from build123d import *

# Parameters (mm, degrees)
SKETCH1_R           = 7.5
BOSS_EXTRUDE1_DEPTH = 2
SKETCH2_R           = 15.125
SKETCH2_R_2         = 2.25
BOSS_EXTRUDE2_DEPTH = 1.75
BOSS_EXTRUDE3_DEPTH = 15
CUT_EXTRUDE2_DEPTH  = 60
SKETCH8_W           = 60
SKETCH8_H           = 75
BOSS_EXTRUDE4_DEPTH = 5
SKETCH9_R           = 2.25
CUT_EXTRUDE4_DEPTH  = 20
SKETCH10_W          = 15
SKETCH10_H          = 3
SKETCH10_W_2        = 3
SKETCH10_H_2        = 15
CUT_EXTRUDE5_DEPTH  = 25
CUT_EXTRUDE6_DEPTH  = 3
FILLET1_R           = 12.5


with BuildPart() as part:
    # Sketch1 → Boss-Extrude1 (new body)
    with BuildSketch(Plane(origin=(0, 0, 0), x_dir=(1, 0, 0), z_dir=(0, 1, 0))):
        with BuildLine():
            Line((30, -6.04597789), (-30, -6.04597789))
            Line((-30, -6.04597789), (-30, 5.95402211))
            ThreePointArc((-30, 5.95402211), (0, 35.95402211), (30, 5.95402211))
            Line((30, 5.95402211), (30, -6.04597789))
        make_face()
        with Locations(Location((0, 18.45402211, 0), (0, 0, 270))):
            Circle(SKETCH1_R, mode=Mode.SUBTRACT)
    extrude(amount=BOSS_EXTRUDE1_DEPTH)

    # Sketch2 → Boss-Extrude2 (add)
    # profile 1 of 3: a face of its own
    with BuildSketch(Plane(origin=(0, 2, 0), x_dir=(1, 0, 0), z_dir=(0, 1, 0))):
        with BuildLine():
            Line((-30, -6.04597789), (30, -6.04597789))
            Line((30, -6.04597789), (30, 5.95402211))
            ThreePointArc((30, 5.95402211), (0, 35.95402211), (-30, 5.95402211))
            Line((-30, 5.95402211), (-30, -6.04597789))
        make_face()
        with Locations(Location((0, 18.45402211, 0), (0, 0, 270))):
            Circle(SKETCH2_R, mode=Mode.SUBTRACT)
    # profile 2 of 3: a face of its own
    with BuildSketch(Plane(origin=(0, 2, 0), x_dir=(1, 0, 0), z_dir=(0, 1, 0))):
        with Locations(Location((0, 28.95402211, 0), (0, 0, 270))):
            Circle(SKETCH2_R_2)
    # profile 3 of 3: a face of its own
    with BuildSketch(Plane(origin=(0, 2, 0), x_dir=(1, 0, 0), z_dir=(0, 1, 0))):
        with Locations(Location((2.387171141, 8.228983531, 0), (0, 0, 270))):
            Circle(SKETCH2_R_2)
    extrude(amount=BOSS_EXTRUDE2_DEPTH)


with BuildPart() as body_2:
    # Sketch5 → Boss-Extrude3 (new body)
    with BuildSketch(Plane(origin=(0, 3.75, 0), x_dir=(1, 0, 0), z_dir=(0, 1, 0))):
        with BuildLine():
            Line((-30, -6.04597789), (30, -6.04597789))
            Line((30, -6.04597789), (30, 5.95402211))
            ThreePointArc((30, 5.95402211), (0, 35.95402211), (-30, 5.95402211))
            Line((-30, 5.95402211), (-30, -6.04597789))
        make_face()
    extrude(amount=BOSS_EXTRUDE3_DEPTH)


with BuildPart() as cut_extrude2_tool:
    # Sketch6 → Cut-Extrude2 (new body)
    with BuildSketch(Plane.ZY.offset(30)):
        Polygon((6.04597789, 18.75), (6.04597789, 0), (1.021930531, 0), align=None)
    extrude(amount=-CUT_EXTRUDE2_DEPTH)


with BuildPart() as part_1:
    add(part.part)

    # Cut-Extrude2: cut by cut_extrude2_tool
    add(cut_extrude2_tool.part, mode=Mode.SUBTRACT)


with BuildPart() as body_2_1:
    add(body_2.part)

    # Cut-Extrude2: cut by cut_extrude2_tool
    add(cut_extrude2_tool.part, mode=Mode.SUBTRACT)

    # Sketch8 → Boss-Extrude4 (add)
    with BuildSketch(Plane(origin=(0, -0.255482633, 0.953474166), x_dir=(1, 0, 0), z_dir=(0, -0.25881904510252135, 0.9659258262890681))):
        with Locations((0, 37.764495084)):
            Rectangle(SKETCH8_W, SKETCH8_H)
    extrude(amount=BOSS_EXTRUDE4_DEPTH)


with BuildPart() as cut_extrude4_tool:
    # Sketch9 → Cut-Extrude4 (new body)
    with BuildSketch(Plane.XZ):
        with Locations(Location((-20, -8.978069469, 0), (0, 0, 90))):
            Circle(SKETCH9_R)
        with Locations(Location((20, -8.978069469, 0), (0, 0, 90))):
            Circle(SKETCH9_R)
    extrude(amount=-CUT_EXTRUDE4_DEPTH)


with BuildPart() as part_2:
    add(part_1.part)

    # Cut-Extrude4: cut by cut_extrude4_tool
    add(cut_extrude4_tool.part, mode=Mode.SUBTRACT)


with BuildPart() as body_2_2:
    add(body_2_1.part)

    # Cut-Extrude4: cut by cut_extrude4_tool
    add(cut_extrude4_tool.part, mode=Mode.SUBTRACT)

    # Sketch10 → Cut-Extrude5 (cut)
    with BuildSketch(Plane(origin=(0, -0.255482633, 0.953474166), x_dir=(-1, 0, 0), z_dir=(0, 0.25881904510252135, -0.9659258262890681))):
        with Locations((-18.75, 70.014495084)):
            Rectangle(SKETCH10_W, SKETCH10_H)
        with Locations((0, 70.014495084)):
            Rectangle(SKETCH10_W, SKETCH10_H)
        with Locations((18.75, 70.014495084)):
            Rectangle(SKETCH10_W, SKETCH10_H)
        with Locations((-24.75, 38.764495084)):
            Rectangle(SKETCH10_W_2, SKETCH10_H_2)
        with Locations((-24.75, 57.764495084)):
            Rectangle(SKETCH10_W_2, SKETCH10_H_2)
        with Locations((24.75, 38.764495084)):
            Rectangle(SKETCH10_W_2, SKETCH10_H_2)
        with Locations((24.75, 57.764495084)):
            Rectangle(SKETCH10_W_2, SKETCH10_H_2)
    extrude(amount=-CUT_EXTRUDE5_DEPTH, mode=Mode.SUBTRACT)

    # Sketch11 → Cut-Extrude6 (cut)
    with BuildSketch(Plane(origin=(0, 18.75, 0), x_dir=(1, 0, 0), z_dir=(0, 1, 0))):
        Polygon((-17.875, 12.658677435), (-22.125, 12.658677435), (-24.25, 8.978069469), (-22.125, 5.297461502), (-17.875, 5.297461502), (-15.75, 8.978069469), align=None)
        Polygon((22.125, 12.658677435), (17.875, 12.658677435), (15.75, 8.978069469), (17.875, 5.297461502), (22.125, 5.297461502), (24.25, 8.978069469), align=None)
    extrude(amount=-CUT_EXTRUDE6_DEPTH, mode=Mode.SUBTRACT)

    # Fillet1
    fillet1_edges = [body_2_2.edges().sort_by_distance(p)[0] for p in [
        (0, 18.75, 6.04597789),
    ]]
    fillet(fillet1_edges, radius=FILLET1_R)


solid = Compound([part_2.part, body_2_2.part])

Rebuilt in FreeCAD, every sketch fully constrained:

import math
import FreeCAD as App
import Part
import Sketcher

V = App.Vector
Q = App.Units.Quantity


def edges_at(feature, points):
    """Names of the edges that pass closest to the given points."""
    edges = feature.Shape.Edges
    near = lambda p: min(range(len(edges)), key=lambda i: edges[i].distToShape(Part.Vertex(*p))[0])
    return sorted({f"Edge{near(p) + 1}" for p in points})


def add_polygon(sketch, points):
    """Adds a closed chain of lines whose ends are joined by coincident constraints."""
    first, n = sketch.GeometryCount, len(points)
    for a, b in zip(points, points[1:] + points[:1]):
        sketch.addGeometry(Part.LineSegment(App.Vector(*a, 0), App.Vector(*b, 0)), False)
    for i in range(n):
        sketch.addConstraint(Sketcher.Constraint("Coincident", first + i, 2, first + (i + 1) % n, 1))

doc = App.newDocument("Part")
body = doc.addObject("PartDesign::Body", "Body")

sketch1 = body.newObject("Sketcher::SketchObject", "Sketch")
sketch1.AttachmentSupport = (doc.getObject("XZ_Plane"), [""])
sketch1.MapMode = "FlatFace"
sketch1.addGeometry(Part.LineSegment(V(-30, 6.045978, 0), V(30, 6.045978, 0)), False)
sketch1.addGeometry(Part.LineSegment(V(30, 6.045978, 0), V(30, -5.954022, 0)), False)
sketch1.addGeometry(Part.ArcOfCircle(Part.Circle(V(0, -5.954022, 0), V(0, 0, 1), 30), math.radians(180), math.radians(360)), False)
sketch1.addGeometry(Part.LineSegment(V(-30, -5.954022, 0), V(-30, 6.045978, 0)), False)
sketch1.addGeometry(Part.Circle(V(0, -18.454022, 0), V(0, 0, 1), 7.5), False)
sketch1.addConstraint(Sketcher.Constraint("Coincident", 0, 2, 1, 1))
sketch1.addConstraint(Sketcher.Constraint("Tangent", 1, 2, 2, 2))
sketch1.addConstraint(Sketcher.Constraint("Tangent", 2, 1, 3, 1))
sketch1.addConstraint(Sketcher.Constraint("Coincident", 3, 2, 0, 1))
sketch1.addConstraint(Sketcher.Constraint("Horizontal", 0))
sketch1.addConstraint(Sketcher.Constraint("Vertical", 1))
sketch1.addConstraint(Sketcher.Constraint("Vertical", 3))
sketch1.addConstraint(Sketcher.Constraint("PointOnObject", 2, 3, -2))
sketch1.addConstraint(Sketcher.Constraint("PointOnObject", 4, 3, -2))
sketch1.addConstraint(Sketcher.Constraint("Diameter", 4, 15.0))
sketch1.addConstraint(Sketcher.Constraint("Radius", 2, 30.0))
sketch1.addConstraint(Sketcher.Constraint("DistanceY", 1, 2, 1, 1, 12.0))
sketch1.addConstraint(Sketcher.Constraint("DistanceY", 4, 3, 2, 3, 12.5))
sketch1.addConstraint(Sketcher.Constraint("DistanceY", 2, 3, -1, 1, 5.954022))
pad1 = body.newObject("PartDesign::Pad", "Pad")
pad1.Profile = sketch1
pad1.Length = 2
pad1.Reversed = True

sketch2 = body.newObject("Sketcher::SketchObject", "Sketch001")
sketch2.AttachmentSupport = (doc.getObject("XZ_Plane"), [""])
sketch2.MapMode = "FlatFace"
sketch2.AttachmentOffset = App.Placement(V(0, 0, -2), App.Rotation())
sketch2.addGeometry(Part.LineSegment(V(-30, 6.045978, 0), V(30, 6.045978, 0)), False)
sketch2.addGeometry(Part.LineSegment(V(30, 6.045978, 0), V(30, -5.954022, 0)), False)
sketch2.addGeometry(Part.ArcOfCircle(Part.Circle(V(0, -5.954022, 0), V(0, 0, 1), 30), math.radians(180), math.radians(360)), False)
sketch2.addGeometry(Part.LineSegment(V(-30, -5.954022, 0), V(-30, 6.045978, 0)), False)
sketch2.addGeometry(Part.Circle(V(0, -18.454022, 0), V(0, 0, 1), 15.125), False)
sketch2.addGeometry(Part.Circle(V(0, -28.954022, 0), V(0, 0, 1), 2.25), False)
sketch2.addGeometry(Part.Circle(V(2.387171, -8.228984, 0), V(0, 0, 1), 2.25), False)
sketch2.addConstraint(Sketcher.Constraint("Coincident", 0, 2, 1, 1))
sketch2.addConstraint(Sketcher.Constraint("Tangent", 1, 2, 2, 2))
sketch2.addConstraint(Sketcher.Constraint("Tangent", 2, 1, 3, 1))
sketch2.addConstraint(Sketcher.Constraint("Coincident", 3, 2, 0, 1))
sketch2.addConstraint(Sketcher.Constraint("Horizontal", 0))
sketch2.addConstraint(Sketcher.Constraint("Vertical", 1))
sketch2.addConstraint(Sketcher.Constraint("Vertical", 3))
sketch2.addConstraint(Sketcher.Constraint("Equal", 5, 6))
sketch2.addConstraint(Sketcher.Constraint("PointOnObject", 2, 3, -2))
sketch2.addConstraint(Sketcher.Constraint("PointOnObject", 4, 3, -2))
sketch2.addConstraint(Sketcher.Constraint("PointOnObject", 5, 3, -2))
sketch2.addConstraint(Sketcher.Constraint("Radius", 2, 30.0))
sketch2.addConstraint(Sketcher.Constraint("Diameter", 5, 4.5))
sketch2.addConstraint(Sketcher.Constraint("Diameter", 4, 30.25))
sketch2.addConstraint(Sketcher.Constraint("DistanceY", 1, 2, 1, 1, 12.0))
sketch2.addConstraint(Sketcher.Constraint("DistanceY", 5, 3, 2, 3, 23.0))
sketch2.addConstraint(Sketcher.Constraint("DistanceY", 4, 3, 2, 3, 12.5))
sketch2.addConstraint(Sketcher.Constraint("DistanceX", -1, 1, 6, 3, 2.387171))
sketch2.addConstraint(Sketcher.Constraint("DistanceY", 6, 3, 2, 3, 2.274961))
sketch2.addConstraint(Sketcher.Constraint("DistanceY", 2, 3, -1, 1, 5.954022))
pad2 = body.newObject("PartDesign::Pad", "Pad001")
pad2.Profile = sketch2
pad2.Length = 1.75
pad2.Reversed = True
body2 = doc.addObject("PartDesign::Body", "Body001")

sketch3 = body2.newObject("Sketcher::SketchObject", "Sketch002")
sketch3.AttachmentSupport = (doc.getObject("XZ_Plane001"), [""])
sketch3.MapMode = "FlatFace"
sketch3.AttachmentOffset = App.Placement(V(0, 0, -3.75), App.Rotation())
sketch3.addGeometry(Part.LineSegment(V(-30, 6.045978, 0), V(30, 6.045978, 0)), False)
sketch3.addGeometry(Part.LineSegment(V(30, 6.045978, 0), V(30, -5.954022, 0)), False)
sketch3.addGeometry(Part.ArcOfCircle(Part.Circle(V(0, -5.954022, 0), V(0, 0, 1), 30), math.radians(180), math.radians(360)), False)
sketch3.addGeometry(Part.LineSegment(V(-30, -5.954022, 0), V(-30, 6.045978, 0)), False)
sketch3.addConstraint(Sketcher.Constraint("Coincident", 0, 2, 1, 1))
sketch3.addConstraint(Sketcher.Constraint("Tangent", 1, 2, 2, 2))
sketch3.addConstraint(Sketcher.Constraint("Tangent", 2, 1, 3, 1))
sketch3.addConstraint(Sketcher.Constraint("Coincident", 3, 2, 0, 1))
sketch3.addConstraint(Sketcher.Constraint("Horizontal", 0))
sketch3.addConstraint(Sketcher.Constraint("Vertical", 1))
sketch3.addConstraint(Sketcher.Constraint("Vertical", 3))
sketch3.addConstraint(Sketcher.Constraint("PointOnObject", 2, 3, -2))
sketch3.addConstraint(Sketcher.Constraint("Radius", 2, 30.0))
sketch3.addConstraint(Sketcher.Constraint("DistanceY", 1, 2, 1, 1, 12.0))
sketch3.addConstraint(Sketcher.Constraint("DistanceY", 2, 3, -1, 1, 5.954022))
pad3 = body2.newObject("PartDesign::Pad", "Pad002")
pad3.Profile = sketch3
pad3.Length = 15
pad3.Reversed = True
body3 = doc.addObject("PartDesign::Body", "Body002")

sketch4 = body3.newObject("Sketcher::SketchObject", "Sketch003")
sketch4.AttachmentSupport = (doc.getObject("YZ_Plane002"), [""])
sketch4.MapMode = "FlatFace"
sketch4.AttachmentOffset = App.Placement(V(0, 0, -30), App.Rotation())
add_polygon(sketch4, [(0, 6.045978), (18.75, 6.045978), (0, 1.021931)])
sketch4.addConstraint(Sketcher.Constraint("Horizontal", 0))
sketch4.addConstraint(Sketcher.Constraint("Vertical", 2))
sketch4.addConstraint(Sketcher.Constraint("PointOnObject", 1, 2, -2))
sketch4.addConstraint(Sketcher.Constraint("Angle", 1, Q("-165 deg")))
sketch4.addConstraint(Sketcher.Constraint("DistanceX", 0, 1, 0, 2, 18.75))
sketch4.addConstraint(Sketcher.Constraint("DistanceY", -1, 1, 1, 2, 1.021931))
pad4 = body3.newObject("PartDesign::Pad", "Pad003")
pad4.Profile = sketch4
pad4.Length = 60
doc.recompute()

body4 = doc.addObject("PartDesign::Body", "Body003")
body4.BaseFeature = body3
boolean = body.newObject("PartDesign::Boolean", "Boolean")
boolean.Type = "Cut"
boolean.addObjects([body4])
doc.recompute()

boolean2 = body2.newObject("PartDesign::Boolean", "Boolean001")
boolean2.Type = "Cut"
boolean2.addObjects([body3])

sketch5 = body2.newObject("Sketcher::SketchObject", "Sketch004")
sketch5.Placement = App.Placement(V(0, -0.255483, 0.953474), App.Rotation(V(1, 0, 0), V(0, 0.965925826, 0.258819045), V(0, -0.258819045, 0.965925826), "ZXY"))
add_polygon(sketch5, [(-30, 75.264495), (-30, 0.264495), (30, 0.264495), (30, 75.264495)])
sketch5.addConstraint(Sketcher.Constraint("Vertical", 0))
sketch5.addConstraint(Sketcher.Constraint("Horizontal", 1))
sketch5.addConstraint(Sketcher.Constraint("Vertical", 2))
sketch5.addConstraint(Sketcher.Constraint("Horizontal", 3))
sketch5.addConstraint(Sketcher.Constraint("DistanceX", 1, 1, 1, 2, 60.0))
sketch5.addConstraint(Sketcher.Constraint("DistanceY", 0, 2, 0, 1, 75.0))
sketch5.addConstraint(Sketcher.Constraint("DistanceX", 0, 2, -1, 1, 30.0))
sketch5.addConstraint(Sketcher.Constraint("DistanceY", -1, 1, 0, 2, 0.264495))
pad5 = body2.newObject("PartDesign::Pad", "Pad004")
pad5.Profile = sketch5
pad5.Length = 5
body5 = doc.addObject("PartDesign::Body", "Body004")
body5.AllowCompound = True

sketch6 = body5.newObject("Sketcher::SketchObject", "Sketch005")
sketch6.AttachmentSupport = (doc.getObject("XZ_Plane004"), [""])
sketch6.MapMode = "FlatFace"
sketch6.addGeometry(Part.Circle(V(-20, -8.978069, 0), V(0, 0, 1), 2.25), False)
sketch6.addGeometry(Part.Circle(V(20, -8.978069, 0), V(0, 0, 1), 2.25), False)
sketch6.addConstraint(Sketcher.Constraint("Equal", 0, 1))
sketch6.addConstraint(Sketcher.Constraint("Symmetric", 0, 3, 1, 3, -2))
sketch6.addConstraint(Sketcher.Constraint("Diameter", 0, 4.5))
sketch6.addConstraint(Sketcher.Constraint("DistanceX", 0, 3, -1, 1, 20.0))
sketch6.addConstraint(Sketcher.Constraint("DistanceY", 0, 3, -1, 1, 8.978069))
pad6 = body5.newObject("PartDesign::Pad", "Pad005")
pad6.Profile = sketch6
pad6.Length = 20
pad6.Reversed = True
doc.recompute()

body6 = doc.addObject("PartDesign::Body", "Body005")
body6.BaseFeature = body5
boolean3 = body.newObject("PartDesign::Boolean", "Boolean002")
boolean3.Type = "Cut"
boolean3.addObjects([body6])
doc.recompute()

boolean4 = body2.newObject("PartDesign::Boolean", "Boolean003")
boolean4.Type = "Cut"
boolean4.addObjects([body5])

sketch7 = body2.newObject("Sketcher::SketchObject", "Sketch006")
sketch7.Placement = App.Placement(V(0, -0.255483, 0.953474), App.Rotation(V(-1, 0, 0), V(0, 0.965925826, 0.258819045), V(0, 0.258819045, -0.965925826), "ZXY"))
add_polygon(sketch7, [(-26.25, 71.514495), (-26.25, 68.514495), (-11.25, 68.514495), (-11.25, 71.514495)])
add_polygon(sketch7, [(-7.5, 71.514495), (-7.5, 68.514495), (7.5, 68.514495), (7.5, 71.514495)])
add_polygon(sketch7, [(11.25, 71.514495), (11.25, 68.514495), (26.25, 68.514495), (26.25, 71.514495)])
add_polygon(sketch7, [(-26.25, 46.264495), (-26.25, 31.264495), (-23.25, 31.264495), (-23.25, 46.264495)])
add_polygon(sketch7, [(-26.25, 65.264495), (-26.25, 50.264495), (-23.25, 50.264495), (-23.25, 65.264495)])
add_polygon(sketch7, [(23.25, 46.264495), (23.25, 31.264495), (26.25, 31.264495), (26.25, 46.264495)])
add_polygon(sketch7, [(23.25, 65.264495), (23.25, 50.264495), (26.25, 50.264495), (26.25, 65.264495)])
sketch7.addConstraint(Sketcher.Constraint("Vertical", 0))
sketch7.addConstraint(Sketcher.Constraint("Horizontal", 1))
sketch7.addConstraint(Sketcher.Constraint("Vertical", 2))
sketch7.addConstraint(Sketcher.Constraint("Horizontal", 3))
sketch7.addConstraint(Sketcher.Constraint("Vertical", 4))
sketch7.addConstraint(Sketcher.Constraint("Horizontal", 5))
sketch7.addConstraint(Sketcher.Constraint("Vertical", 6))
sketch7.addConstraint(Sketcher.Constraint("Horizontal", 7))
sketch7.addConstraint(Sketcher.Constraint("Vertical", 8))
sketch7.addConstraint(Sketcher.Constraint("Horizontal", 9))
sketch7.addConstraint(Sketcher.Constraint("Vertical", 10))
sketch7.addConstraint(Sketcher.Constraint("Horizontal", 11))
sketch7.addConstraint(Sketcher.Constraint("Vertical", 12))
sketch7.addConstraint(Sketcher.Constraint("Horizontal", 13))
sketch7.addConstraint(Sketcher.Constraint("Vertical", 14))
sketch7.addConstraint(Sketcher.Constraint("Horizontal", 15))
sketch7.addConstraint(Sketcher.Constraint("Vertical", 16))
sketch7.addConstraint(Sketcher.Constraint("Horizontal", 17))
sketch7.addConstraint(Sketcher.Constraint("Vertical", 18))
sketch7.addConstraint(Sketcher.Constraint("Horizontal", 19))
sketch7.addConstraint(Sketcher.Constraint("Vertical", 20))
sketch7.addConstraint(Sketcher.Constraint("Horizontal", 21))
sketch7.addConstraint(Sketcher.Constraint("Vertical", 22))
sketch7.addConstraint(Sketcher.Constraint("Horizontal", 23))
sketch7.addConstraint(Sketcher.Constraint("Vertical", 24))
sketch7.addConstraint(Sketcher.Constraint("Horizontal", 25))
sketch7.addConstraint(Sketcher.Constraint("Vertical", 26))
sketch7.addConstraint(Sketcher.Constraint("Horizontal", 27))
sketch7.addConstraint(Sketcher.Constraint("Symmetric", 1, 2, 8, 2, -2))
sketch7.addConstraint(Sketcher.Constraint("Symmetric", 3, 2, 10, 2, -2))
sketch7.addConstraint(Sketcher.Constraint("Symmetric", 13, 2, 20, 2, -2))
sketch7.addConstraint(Sketcher.Constraint("Symmetric", 15, 2, 22, 2, -2))
sketch7.addConstraint(Sketcher.Constraint("Symmetric", 17, 2, 24, 2, -2))
sketch7.addConstraint(Sketcher.Constraint("Symmetric", 19, 2, 26, 2, -2))
sketch7.addConstraint(Sketcher.Constraint("Horizontal", 1, 2, 4, 2))
sketch7.addConstraint(Sketcher.Constraint("Horizontal", 3, 2, 6, 2))
sketch7.addConstraint(Sketcher.Constraint("Vertical", 3, 2, 12, 2))
sketch7.addConstraint(Sketcher.Constraint("Vertical", 15, 2, 16, 2))
sketch7.addConstraint(Sketcher.Constraint("Vertical", 14, 2, 17, 2))
sketch7.addConstraint(Sketcher.Constraint("Equal", 3, 5))
sketch7.addConstraint(Sketcher.Constraint("Equal", 27, 0))
sketch7.addConstraint(Sketcher.Constraint("Equal", 11, 12))
sketch7.addConstraint(Sketcher.Constraint("Equal", 14, 16))
sketch7.addConstraint(Sketcher.Constraint("DistanceX", 1, 1, 1, 2, 15.0))
sketch7.addConstraint(Sketcher.Constraint("DistanceX", 13, 1, 13, 2, 3.0))
sketch7.addConstraint(Sketcher.Constraint("DistanceY", 15, 2, 16, 2, 4.0))
sketch7.addConstraint(Sketcher.Constraint("DistanceX", 4, 2, -1, 1, 7.5))
sketch7.addConstraint(Sketcher.Constraint("DistanceX", 1, 2, 8, 2, 22.5))
sketch7.addConstraint(Sketcher.Constraint("DistanceY", 12, 2, 0, 2, 37.25))
sketch7.addConstraint(Sketcher.Constraint("DistanceY", -1, 1, 0, 2, 68.514495))
pocket1 = body2.newObject("PartDesign::Pocket", "Pocket")
pocket1.Profile = sketch7
pocket1.Length = 25

sketch8 = body2.newObject("Sketcher::SketchObject", "Sketch007")
sketch8.AttachmentSupport = (doc.getObject("XZ_Plane001"), [""])
sketch8.MapMode = "FlatFace"
sketch8.AttachmentOffset = App.Placement(V(0, 0, -18.75), App.Rotation())
add_polygon(sketch8, [(-17.875, -12.658677), (-22.125, -12.658677), (-24.25, -8.978069), (-22.125, -5.297462), (-17.875, -5.297462), (-15.75, -8.978069)])
add_polygon(sketch8, [(22.125, -12.658677), (17.875, -12.658677), (15.75, -8.978069), (17.875, -5.297462), (22.125, -5.297462), (24.25, -8.978069)])
sketch8.addConstraint(Sketcher.Constraint("Horizontal", 0))
sketch8.addConstraint(Sketcher.Constraint("Horizontal", 3))
sketch8.addConstraint(Sketcher.Constraint("Horizontal", 6))
sketch8.addConstraint(Sketcher.Constraint("Horizontal", 9))
sketch8.addConstraint(Sketcher.Constraint("Symmetric", 5, 2, 6, 2, -2))
sketch8.addConstraint(Sketcher.Constraint("Symmetric", 4, 2, 7, 2, -2))
sketch8.addConstraint(Sketcher.Constraint("Symmetric", 3, 2, 8, 2, -2))
sketch8.addConstraint(Sketcher.Constraint("Symmetric", 1, 2, 10, 2, -2))
sketch8.addConstraint(Sketcher.Constraint("Parallel", 1, 4))
sketch8.addConstraint(Sketcher.Constraint("Parallel", 2, 5))
sketch8.addConstraint(Sketcher.Constraint("Parallel", 4, 7))
sketch8.addConstraint(Sketcher.Constraint("Parallel", 7, 10))
sketch8.addConstraint(Sketcher.Constraint("Parallel", 8, 11))
sketch8.addConstraint(Sketcher.Constraint("Horizontal", 1, 2, 4, 2))
sketch8.addConstraint(Sketcher.Constraint("Vertical", 0, 2, 2, 2))
sketch8.addConstraint(Sketcher.Constraint("Angle", 1, Q("120 deg")))
sketch8.addConstraint(Sketcher.Constraint("DistanceX", 0, 2, 6, 2, 40.0))
sketch8.addConstraint(Sketcher.Constraint("DistanceX", 0, 2, 0, 1, 4.25))
sketch8.addConstraint(Sketcher.Constraint("DistanceX", 1, 2, 4, 2, 8.5))
sketch8.addConstraint(Sketcher.Constraint("DistanceY", 1, 2, -1, 1, 8.978069))
pocket2 = body2.newObject("PartDesign::Pocket", "Pocket001")
pocket2.Profile = sketch8
pocket2.Length = 3
pocket2.Reversed = True
doc.recompute()

fillet = body2.newObject("PartDesign::Fillet", "Fillet")
fillet.Base = (pocket2, edges_at(pocket2, [(0, 18.75, 6.046)]))
fillet.Radius = 12.5

doc.recompute()
